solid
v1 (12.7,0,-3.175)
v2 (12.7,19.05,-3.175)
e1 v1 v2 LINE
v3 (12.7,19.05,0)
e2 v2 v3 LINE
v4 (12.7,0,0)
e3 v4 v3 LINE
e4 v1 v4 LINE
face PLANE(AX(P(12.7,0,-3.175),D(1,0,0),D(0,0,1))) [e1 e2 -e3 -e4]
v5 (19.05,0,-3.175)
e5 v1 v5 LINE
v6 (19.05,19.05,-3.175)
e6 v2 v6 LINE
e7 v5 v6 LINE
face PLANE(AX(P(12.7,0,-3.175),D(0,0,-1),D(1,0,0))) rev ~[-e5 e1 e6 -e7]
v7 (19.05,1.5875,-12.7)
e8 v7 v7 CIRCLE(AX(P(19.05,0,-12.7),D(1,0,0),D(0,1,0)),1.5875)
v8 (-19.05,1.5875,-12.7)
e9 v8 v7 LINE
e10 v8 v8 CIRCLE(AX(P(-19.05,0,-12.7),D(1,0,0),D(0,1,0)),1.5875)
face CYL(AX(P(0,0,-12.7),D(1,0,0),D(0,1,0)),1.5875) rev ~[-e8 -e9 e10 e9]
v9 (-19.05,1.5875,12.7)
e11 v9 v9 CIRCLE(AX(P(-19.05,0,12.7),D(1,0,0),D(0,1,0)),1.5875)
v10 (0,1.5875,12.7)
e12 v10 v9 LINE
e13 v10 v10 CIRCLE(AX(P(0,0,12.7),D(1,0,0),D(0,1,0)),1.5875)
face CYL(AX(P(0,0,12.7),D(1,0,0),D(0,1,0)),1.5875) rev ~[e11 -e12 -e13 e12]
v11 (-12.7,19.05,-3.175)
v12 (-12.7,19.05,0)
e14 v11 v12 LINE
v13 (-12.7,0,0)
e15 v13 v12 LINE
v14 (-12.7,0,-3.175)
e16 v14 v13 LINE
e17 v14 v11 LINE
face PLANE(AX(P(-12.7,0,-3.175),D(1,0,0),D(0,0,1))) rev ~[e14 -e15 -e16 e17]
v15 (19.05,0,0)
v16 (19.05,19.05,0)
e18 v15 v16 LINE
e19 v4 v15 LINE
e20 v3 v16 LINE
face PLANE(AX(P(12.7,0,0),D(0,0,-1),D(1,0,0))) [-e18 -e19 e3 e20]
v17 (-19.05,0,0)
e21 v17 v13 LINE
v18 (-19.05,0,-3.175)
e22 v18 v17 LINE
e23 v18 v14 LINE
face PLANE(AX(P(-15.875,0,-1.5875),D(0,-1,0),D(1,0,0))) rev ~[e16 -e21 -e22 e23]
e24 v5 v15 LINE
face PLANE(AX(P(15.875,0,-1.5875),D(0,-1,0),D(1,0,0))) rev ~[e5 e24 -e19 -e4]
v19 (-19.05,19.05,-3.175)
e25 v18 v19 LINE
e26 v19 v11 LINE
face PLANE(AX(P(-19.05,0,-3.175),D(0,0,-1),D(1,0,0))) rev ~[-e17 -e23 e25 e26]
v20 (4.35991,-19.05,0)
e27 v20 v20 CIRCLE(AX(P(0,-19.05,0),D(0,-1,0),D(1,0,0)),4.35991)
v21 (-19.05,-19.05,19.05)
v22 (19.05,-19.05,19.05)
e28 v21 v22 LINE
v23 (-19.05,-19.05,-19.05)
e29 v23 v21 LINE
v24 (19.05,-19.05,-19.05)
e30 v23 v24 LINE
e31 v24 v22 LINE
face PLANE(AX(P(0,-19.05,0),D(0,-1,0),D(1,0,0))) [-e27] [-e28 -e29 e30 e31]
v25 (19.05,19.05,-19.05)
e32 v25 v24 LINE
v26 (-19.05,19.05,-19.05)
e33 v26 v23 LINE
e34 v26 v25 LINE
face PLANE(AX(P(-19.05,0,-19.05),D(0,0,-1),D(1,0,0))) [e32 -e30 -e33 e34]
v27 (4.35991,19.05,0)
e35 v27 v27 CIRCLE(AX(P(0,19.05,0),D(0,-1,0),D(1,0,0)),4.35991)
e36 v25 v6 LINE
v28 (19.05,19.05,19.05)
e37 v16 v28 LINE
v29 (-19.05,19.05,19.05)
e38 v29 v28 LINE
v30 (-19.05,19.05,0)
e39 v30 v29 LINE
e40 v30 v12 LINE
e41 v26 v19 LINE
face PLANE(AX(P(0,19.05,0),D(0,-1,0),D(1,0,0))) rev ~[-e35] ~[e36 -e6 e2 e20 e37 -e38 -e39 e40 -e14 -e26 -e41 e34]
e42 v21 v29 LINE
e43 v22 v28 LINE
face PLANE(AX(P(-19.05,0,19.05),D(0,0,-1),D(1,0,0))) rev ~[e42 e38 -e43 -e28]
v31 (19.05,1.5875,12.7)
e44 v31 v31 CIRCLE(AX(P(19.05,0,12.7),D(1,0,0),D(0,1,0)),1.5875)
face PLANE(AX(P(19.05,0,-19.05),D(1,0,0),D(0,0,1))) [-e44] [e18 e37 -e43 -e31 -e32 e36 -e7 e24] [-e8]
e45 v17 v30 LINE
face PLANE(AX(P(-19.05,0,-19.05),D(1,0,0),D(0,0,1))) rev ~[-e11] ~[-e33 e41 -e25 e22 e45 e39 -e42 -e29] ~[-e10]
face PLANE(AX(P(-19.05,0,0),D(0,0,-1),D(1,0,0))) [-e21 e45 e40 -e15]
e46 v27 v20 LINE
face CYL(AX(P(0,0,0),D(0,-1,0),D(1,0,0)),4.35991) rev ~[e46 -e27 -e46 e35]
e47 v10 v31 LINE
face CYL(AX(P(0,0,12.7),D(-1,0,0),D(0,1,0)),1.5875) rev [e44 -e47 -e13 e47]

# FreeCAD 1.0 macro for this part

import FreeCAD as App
import Part
import Sketcher
from FreeCAD import Vector
Q = App.Units.Quantity


def add_polygon(sketch, points):
    """Adds a closed chain of lines whose ends are joined by coincident constraints."""
    first, n = sketch.GeometryCount, len(points)
    for a, b in zip(points, points[1:] + points[:1]):
        sketch.addGeometry(Part.LineSegment(App.Vector(*a, 0), App.Vector(*b, 0)), False)
    for i in range(n):
        sketch.addConstraint(Sketcher.Constraint("Coincident", first + i, 2, first + (i + 1) % n, 1))

doc = App.newDocument("Part")
body = doc.addObject("PartDesign::Body", "Body")

# Sketch on XZ plane
sketch1 = body.newObject("Sketcher::SketchObject", "Sketch")
sketch1.AttachmentSupport = (doc.getObject("XZ_Plane"), [""])
sketch1.MapMode = "FlatFace"
add_polygon(sketch1, [(-19, 19), (-19, -19), (19, -19), (19, 19)])  # lines 0-3
sketch1.addConstraint([
    Sketcher.Constraint("Vertical", 0),
    Sketcher.Constraint("Horizontal", 1),
    Sketcher.Constraint("Vertical", 2),
    Sketcher.Constraint("Horizontal", 3),
    Sketcher.Constraint("Symmetric", 0, 2, 2, 2, -1, 1),
    Sketcher.Constraint("Equal", 3, 0),
    Sketcher.Constraint("DistanceX", 1, 1, 1, 2, Q("1.5 in")),
])
pad1 = body.newObject("PartDesign::Pad", "Pad")
pad1.Profile = sketch1
pad1.Length = Q("1.5 in")
pad1.Midplane = True

# Sketch on XZ plane
sketch2 = body.newObject("Sketcher::SketchObject", "Sketch001")
sketch2.AttachmentSupport = (doc.getObject("XZ_Plane"), [""])
sketch2.MapMode = "FlatFace"
sketch2.addGeometry(Part.Circle(Vector(0, 0, 0), Vector(0, 0, 1), 4.4), False)
sketch2.addConstraint([
    Sketcher.Constraint("Coincident", 0, 3, -1, 1),
    Sketcher.Constraint("Diameter", 0, Q("0.3433 in")),
])
pocket1 = body.newObject("PartDesign::Pocket", "Pocket")
pocket1.Profile = sketch2
pocket1.Length = Q("1.5 in")
pocket1.Midplane = True

# Sketch on XZ plane
sketch3 = body.newObject("Sketcher::SketchObject", "Sketch002")
sketch3.AttachmentSupport = (doc.getObject("XZ_Plane"), [""])
sketch3.MapMode = "FlatFace"
add_polygon(sketch3, [(-19.1, 0), (-19.1, -3.2), (-12.7, -3.2), (-12.7, 0)])  # lines 0-3
add_polygon(sketch3, [(12.7, 0), (12.7, -3.2), (19.1, -3.2), (19.1, 0)])  # lines 4-7
sketch3.addConstraint([
    Sketcher.Constraint("Vertical", 0),
    Sketcher.Constraint("Horizontal", 1),
    Sketcher.Constraint("Vertical", 2),
    Sketcher.Constraint("Horizontal", 3),
    Sketcher.Constraint("Vertical", 4),
    Sketcher.Constraint("Horizontal", 5),
    Sketcher.Constraint("Vertical", 6),
    Sketcher.Constraint("Horizontal", 7),
    Sketcher.Constraint("Symmetric", 3, 2, 6, 2, -1, 1),
    Sketcher.Constraint("Symmetric", 1, 2, 4, 2, -2),
    Sketcher.Constraint("PointOnObject", 2, 2, -1),
    Sketcher.Constraint("DistanceX", 1, 2, 4, 2, Q("1 in")),
    Sketcher.Constraint("DistanceX", 1, 1, 1, 2, Q("0.25 in")),
    Sketcher.Constraint("DistanceY", 0, 2, 0, 1, Q("0.125 in")),
])
pocket2 = body.newObject("PartDesign::Pocket", "Pocket001")
pocket2.Profile = sketch3
pocket2.Type = "ThroughAll"

# Sketch on YZ plane
sketch4 = body.newObject("Sketcher::SketchObject", "Sketch003")
sketch4.AttachmentSupport = (doc.getObject("YZ_Plane"), [""])
sketch4.MapMode = "FlatFace"
sketch4.addGeometry([
    Part.Circle(Vector(0, 12.7, 0), Vector(0, 0, 1), 1.6),
    Part.Circle(Vector(0, -12.7, 0), Vector(0, 0, 1), 1.6),
], False)
sketch4.addConstraint([
    Sketcher.Constraint("Equal", 0, 1),
    Sketcher.Constraint("Symmetric", 0, 3, 1, 3, -1, 1),
    Sketcher.Constraint("PointOnObject", 0, 3, -2),
    Sketcher.Constraint("Diameter", 0, Q("0.125 in")),
    Sketcher.Constraint("DistanceY", 1, 3, 0, 3, Q("1 in")),
])
pocket3 = body.newObject("PartDesign::Pocket", "Pocket002")
pocket3.Profile = sketch4
pocket3.Length = Q("1.5 in")
pocket3.Midplane = True

doc.recompute()
